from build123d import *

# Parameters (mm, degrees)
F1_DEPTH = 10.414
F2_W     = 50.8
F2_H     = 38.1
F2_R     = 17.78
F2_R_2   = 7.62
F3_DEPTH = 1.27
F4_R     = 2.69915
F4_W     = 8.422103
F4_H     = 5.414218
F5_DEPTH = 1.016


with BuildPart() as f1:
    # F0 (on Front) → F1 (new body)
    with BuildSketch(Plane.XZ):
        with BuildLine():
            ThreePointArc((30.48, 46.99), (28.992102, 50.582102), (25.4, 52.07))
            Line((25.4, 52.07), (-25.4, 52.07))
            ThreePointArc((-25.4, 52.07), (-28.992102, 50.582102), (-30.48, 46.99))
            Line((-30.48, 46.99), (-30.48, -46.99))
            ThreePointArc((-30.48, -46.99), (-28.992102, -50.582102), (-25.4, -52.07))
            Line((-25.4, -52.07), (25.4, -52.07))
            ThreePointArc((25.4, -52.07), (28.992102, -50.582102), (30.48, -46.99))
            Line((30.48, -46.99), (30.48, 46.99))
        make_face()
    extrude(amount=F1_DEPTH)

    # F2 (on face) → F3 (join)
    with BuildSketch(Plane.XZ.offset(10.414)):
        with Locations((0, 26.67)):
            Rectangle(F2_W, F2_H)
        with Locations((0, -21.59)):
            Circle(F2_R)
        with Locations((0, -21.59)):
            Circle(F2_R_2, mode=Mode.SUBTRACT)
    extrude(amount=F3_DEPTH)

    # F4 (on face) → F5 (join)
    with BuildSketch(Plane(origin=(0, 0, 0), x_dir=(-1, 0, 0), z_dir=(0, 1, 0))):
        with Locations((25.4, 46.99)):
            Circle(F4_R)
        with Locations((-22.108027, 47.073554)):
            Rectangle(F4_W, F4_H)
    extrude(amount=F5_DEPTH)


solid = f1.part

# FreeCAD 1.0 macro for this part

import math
import FreeCAD as App
import Part
import Sketcher
from FreeCAD import Vector
Q = App.Units.Quantity

doc = App.newDocument("Part")
params = doc.addObject("Spreadsheet::Sheet", "Params")
for row, (alias, value) in enumerate([
    ("sketch1_radius", "0.2000001 in"),
    ("sketch1_width", "2 in"),
    ("sketch1_height", "3.7 in"),
    ("pad1_length", "0.41 in"),
    ("sketch2_diameter", "1.4 in"),
    ("sketch2_diameter2", "0.6 in"),
    ("sketch2_width", "2 in"),
    ("sketch2_height", "1.5 in"),
    ("pad2_length", "0.05 in"),
    ("pad3_length", "0.04 in"),
], start=1):
    params.set(f"A{row}", alias)
    params.set(f"B{row}", "=" + value)
    params.setAlias(f"B{row}", alias)

body = doc.addObject("PartDesign::Body", "Body")

# Sketch on XZ plane
sketch1 = doc.addObject("Sketcher::SketchObject", "Sketch")
body.addObject(sketch1)
sketch1.AttachmentSupport = (doc.XZ_Plane, [""])
sketch1.MapMode = "FlatFace"
sketch1.addGeometry([
    Part.ArcOfCircle(Part.Circle(Vector(25, 47, 0), Vector(0, 0, 1), 5), math.radians(0), math.radians(90)),  # 0
    Part.LineSegment(Vector(25, 52, 0), Vector(-25, 52, 0)),  # 1
    Part.ArcOfCircle(Part.Circle(Vector(-25, 47, 0), Vector(0, 0, 1), 5), math.radians(90), math.radians(180)),  # 2
    Part.LineSegment(Vector(-30, 47, 0), Vector(-30, -47, 0)),  # 3
    Part.ArcOfCircle(Part.Circle(Vector(-25, -47, 0), Vector(0, 0, 1), 5), math.radians(-180), math.radians(-90)),  # 4
    Part.LineSegment(Vector(-25, -52, 0), Vector(25, -52, 0)),  # 5
    Part.ArcOfCircle(Part.Circle(Vector(25, -47, 0), Vector(0, 0, 1), 5), math.radians(-90), math.radians(0)),  # 6
    Part.LineSegment(Vector(30, -47, 0), Vector(30, 47, 0)),  # 7
], False)
sketch1.addConstraint([
    Sketcher.Constraint("Tangent", 0, 2, 1, 1),
    Sketcher.Constraint("Tangent", 1, 2, 2, 1),
    Sketcher.Constraint("Tangent", 2, 2, 3, 1),
    Sketcher.Constraint("Tangent", 3, 2, 4, 1),
    Sketcher.Constraint("Tangent", 4, 2, 5, 1),
    Sketcher.Constraint("Tangent", 5, 2, 6, 1),
    Sketcher.Constraint("Tangent", 6, 2, 7, 1),
    Sketcher.Constraint("Tangent", 7, 2, 0, 1),
    Sketcher.Constraint("Horizontal", 1),
    Sketcher.Constraint("Vertical", 3),
    Sketcher.Constraint("Horizontal", 5),
    Sketcher.Constraint("Vertical", 7),
    Sketcher.Constraint("Equal", 0, 2),
    Sketcher.Constraint("Equal", 2, 4),
    Sketcher.Constraint("Equal", 4, 6),
    Sketcher.Constraint("Symmetric", 0, 3, 4, 3, -1, 1),
    Sketcher.Constraint("Radius", 0, Q("0.2000001 in")),
    Sketcher.Constraint("DistanceX", 1, 2, 1, 1, Q("2 in")),
    Sketcher.Constraint("DistanceY", 3, 2, 3, 1, Q("3.7 in")),
])
sketch1.setExpression("Constraints[16]", "Params.sketch1_radius")
sketch1.setExpression("Constraints[17]", "Params.sketch1_width")
sketch1.setExpression("Constraints[18]", "Params.sketch1_height")
pad1 = doc.addObject("PartDesign::Pad", "Pad")
body.addObject(pad1)
pad1.Profile = sketch1
pad1.setExpression("Length", "Params.pad1_length")

# Sketch on XZ plane
sketch2 = doc.addObject("Sketcher::SketchObject", "Sketch001")
body.addObject(sketch2)
sketch2.AttachmentSupport = (doc.XZ_Plane, [""])
sketch2.MapMode = "FlatFace"
sketch2.AttachmentOffset = App.Placement(Vector(0, 0, 0.41 * 25.4), App.Rotation())
sketch2.addGeometry([
    Part.LineSegment(Vector(-25, 46, 0), Vector(-25, 8, 0)),  # 0
    Part.LineSegment(Vector(-25, 8, 0), Vector(25, 8, 0)),  # 1
    Part.LineSegment(Vector(25, 8, 0), Vector(25, 46, 0)),  # 2
    Part.LineSegment(Vector(25, 46, 0), Vector(-25, 46, 0)),  # 3
    Part.Circle(Vector(0, -22, 0), Vector(0, 0, 1), 18),  # 4
    Part.Circle(Vector(0, -22, 0), Vector(0, 0, 1), 8),  # 5
], False)
sketch2.addConstraint([
    Sketcher.Constraint("Coincident", 0, 2, 1, 1),
    Sketcher.Constraint("Coincident", 1, 2, 2, 1),
    Sketcher.Constraint("Coincident", 2, 2, 3, 1),
    Sketcher.Constraint("Coincident", 3, 2, 0, 1),
    Sketcher.Constraint("Vertical", 0),
    Sketcher.Constraint("Horizontal", 1),
    Sketcher.Constraint("Vertical", 2),
    Sketcher.Constraint("Horizontal", 3),
    Sketcher.Constraint("Coincident", 5, 3, 4, 3),
    Sketcher.Constraint("PointOnObject", 4, 3, -2),
    Sketcher.Constraint("Diameter", 4, Q("1.4 in")),
    Sketcher.Constraint("Diameter", 5, Q("0.6 in")),
    Sketcher.Constraint("DistanceX", 1, 1, 1, 2, Q("2 in")),
    Sketcher.Constraint("DistanceY", 0, 2, 0, 1, Q("1.5 in")),
    Sketcher.Constraint("DistanceX", 0, 2, -1, 1, Q("1 in")),
    Sketcher.Constraint("DistanceY", -1, 1, 0, 2, Q("0.3 in")),
    Sketcher.Constraint("DistanceY", 4, 3, -1, 1, Q("0.85 in")),
])
sketch2.setExpression("Constraints[10]", "Params.sketch2_diameter")
sketch2.setExpression("Constraints[11]", "Params.sketch2_diameter2")
sketch2.setExpression("Constraints[12]", "Params.sketch2_width")
sketch2.setExpression("Constraints[13]", "Params.sketch2_height")
pad2 = doc.addObject("PartDesign::Pad", "Pad001")
body.addObject(pad2)
pad2.Profile = sketch2
pad2.setExpression("Length", "Params.pad2_length")

# Sketch on XZ plane
sketch3 = doc.addObject("Sketcher::SketchObject", "Sketch002")
body.addObject(sketch3)
sketch3.AttachmentSupport = (doc.XZ_Plane, [""])
sketch3.MapMode = "FlatFace"
sketch3.addGeometry([
    Part.Circle(Vector(-25.4, 47, 0), Vector(0, 0, 1), 2.7),  # 0
    Part.LineSegment(Vector(26.3, 49.8, 0), Vector(26.3, 44.4, 0)),  # 1
    Part.LineSegment(Vector(26.3, 44.4, 0), Vector(17.9, 44.4, 0)),  # 2
    Part.LineSegment(Vector(17.9, 44.4, 0), Vector(17.9, 49.8, 0)),  # 3
    Part.LineSegment(Vector(17.9, 49.8, 0), Vector(26.3, 49.8, 0)),  # 4
], False)
sketch3.addConstraint([
    Sketcher.Constraint("Coincident", 1, 2, 2, 1),
    Sketcher.Constraint("Coincident", 2, 2, 3, 1),
    Sketcher.Constraint("Coincident", 3, 2, 4, 1),
    Sketcher.Constraint("Coincident", 4, 2, 1, 1),
    Sketcher.Constraint("Vertical", 1),
    Sketcher.Constraint("Horizontal", 2),
    Sketcher.Constraint("Vertical", 3),
    Sketcher.Constraint("Horizontal", 4),
    Sketcher.Constraint("DistanceX", 0, 3, -1, 1, Q("1 in")),
    Sketcher.Constraint("Diameter", 0, Q("5.3983 mm")),
    Sketcher.Constraint("DistanceY", -1, 1, 0, 3, Q("1.85 in")),
    Sketcher.Constraint("DistanceX", 2, 2, 2, 1, Q("8.422103 mm")),
    Sketcher.Constraint("DistanceY", 1, 2, 1, 1, Q("5.414218 mm")),
    Sketcher.Constraint("DistanceX", -1, 1, 1, 2, Q("26.319078 mm")),
    Sketcher.Constraint("DistanceY", -1, 1, 1, 2, Q("44.366445 mm")),
])
pad3 = doc.addObject("PartDesign::Pad", "Pad002")
body.addObject(pad3)
pad3.Profile = sketch3
pad3.setExpression("Length", "Params.pad3_length")
pad3.Reversed = True

doc.recompute()
